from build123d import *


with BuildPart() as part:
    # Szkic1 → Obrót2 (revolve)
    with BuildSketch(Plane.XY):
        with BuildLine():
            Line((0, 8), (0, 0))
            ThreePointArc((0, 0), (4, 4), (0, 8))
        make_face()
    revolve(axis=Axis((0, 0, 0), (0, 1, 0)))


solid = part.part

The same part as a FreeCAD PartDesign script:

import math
import FreeCAD as App
import Part
import Sketcher

V = App.Vector
Q = App.Units.Quantity

doc = App.newDocument("Part")
body = doc.addObject("PartDesign::Body", "Body")

# Sketch on XY plane
sketch1 = body.newObject("Sketcher::SketchObject", "Sketch")
sketch1.AttachmentSupport = (doc.getObject("XY_Plane"), [""])
sketch1.MapMode = "FlatFace"
sketch1.addGeometry([
    Part.LineSegment(V(0, 8, 0), V(0, 0, 0)),
    Part.ArcOfCircle(Part.Circle(V(0, 4, 0), V(0, 0, 1), 4), math.radians(-90), math.radians(90)),
], False)
sketch1.addConstraint([
    Sketcher.Constraint("Coincident", 0, 1, 1, 2),
    Sketcher.Constraint("Coincident", 1, 1, 0, 2),
    Sketcher.Constraint("Vertical", 0),
    Sketcher.Constraint("Coincident", 1, 1, -1, 1),
    Sketcher.Constraint("PointOnObject", 1, 3, -2),
    Sketcher.Constraint("Radius", 1, Q("4 mm")),
])
revolution = body.newObject("PartDesign::Revolution", "Revolution")
revolution.Profile = sketch1
revolution.ReferenceAxis = (sketch1, ["V_Axis"])
revolution.Angle = 360

doc.recompute()
